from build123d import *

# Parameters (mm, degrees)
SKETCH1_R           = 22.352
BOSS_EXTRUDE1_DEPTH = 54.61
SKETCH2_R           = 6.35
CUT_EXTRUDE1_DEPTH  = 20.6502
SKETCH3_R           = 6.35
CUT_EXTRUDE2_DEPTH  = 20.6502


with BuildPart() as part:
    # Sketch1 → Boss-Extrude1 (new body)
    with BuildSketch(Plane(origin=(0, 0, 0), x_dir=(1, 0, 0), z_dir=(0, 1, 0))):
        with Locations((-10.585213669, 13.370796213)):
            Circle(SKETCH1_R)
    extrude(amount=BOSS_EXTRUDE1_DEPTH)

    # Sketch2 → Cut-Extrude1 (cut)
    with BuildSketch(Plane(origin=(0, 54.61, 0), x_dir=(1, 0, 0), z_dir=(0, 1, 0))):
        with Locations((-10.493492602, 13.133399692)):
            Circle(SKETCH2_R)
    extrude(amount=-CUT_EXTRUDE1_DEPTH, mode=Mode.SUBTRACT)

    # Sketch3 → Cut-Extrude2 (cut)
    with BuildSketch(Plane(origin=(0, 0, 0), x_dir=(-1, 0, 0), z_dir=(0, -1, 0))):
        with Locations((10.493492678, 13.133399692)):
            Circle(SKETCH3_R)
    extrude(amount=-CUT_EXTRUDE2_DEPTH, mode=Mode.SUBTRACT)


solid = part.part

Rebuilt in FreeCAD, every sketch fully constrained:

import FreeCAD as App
import Part
import Sketcher
Q = App.Units.Quantity

doc = App.newDocument("Part")
body = doc.addObject("PartDesign::Body", "Body")

# Sketch on XZ plane
sketch1 = doc.addObject("Sketcher::SketchObject", "Sketch")
body.addObject(sketch1)
sketch1.AttachmentSupport = (doc.XZ_Plane, [""])
sketch1.MapMode = "FlatFace"
sketch1.addGeometry(Part.Circle(App.Vector(-10.585214, -13.370796, 0), App.Vector(0, 0, 1), 22.352), False)
sketch1.addConstraint([
    Sketcher.Constraint("Diameter", 0, Q("1.76 in")),
    Sketcher.Constraint("DistanceX", 0, 3, -1, 1, Q("10.585214 mm")),
    Sketcher.Constraint("DistanceY", 0, 3, -1, 1, Q("13.370796 mm")),
])
pad1 = doc.addObject("PartDesign::Pad", "Pad")
body.addObject(pad1)
pad1.Profile = sketch1
pad1.Length = Q("2.15 in")
pad1.Reversed = True

# Sketch on XZ plane
sketch2 = doc.addObject("Sketcher::SketchObject", "Sketch001")
body.addObject(sketch2)
sketch2.AttachmentSupport = (doc.XZ_Plane, [""])
sketch2.MapMode = "FlatFace"
sketch2.AttachmentOffset = App.Placement(App.Vector(0, 0, -2.15 * 25.4), App.Rotation())
sketch2.addGeometry(Part.Circle(App.Vector(-10.493493, -13.1334, 0), App.Vector(0, 0, 1), 6.35), False)
sketch2.addConstraint([
    Sketcher.Constraint("Diameter", 0, Q("0.5 in")),
    Sketcher.Constraint("DistanceY", 0, 3, -1, 1, Q("13.1334 mm")),
    Sketcher.Constraint("DistanceX", 0, 3, -1, 1, Q("10.493493 mm")),
])
pocket1 = doc.addObject("PartDesign::Pocket", "Pocket")
body.addObject(pocket1)
pocket1.Profile = sketch2
pocket1.Length = Q("0.813 in")
pocket1.Reversed = True

# Sketch on XZ plane
sketch3 = doc.addObject("Sketcher::SketchObject", "Sketch002")
body.addObject(sketch3)
sketch3.AttachmentSupport = (doc.XZ_Plane, [""])
sketch3.MapMode = "FlatFace"
sketch3.addGeometry(Part.Circle(App.Vector(-10.493493, -13.1334, 0), App.Vector(0, 0, 1), 6.35), False)
sketch3.addConstraint([
    Sketcher.Constraint("Diameter", 0, Q("0.5 in")),
    Sketcher.Constraint("DistanceY", 0, 3, -1, 1, Q("13.1334 mm")),
    Sketcher.Constraint("DistanceX", 0, 3, -1, 1, Q("10.493493 mm")),
])
pocket2 = doc.addObject("PartDesign::Pocket", "Pocket001")
body.addObject(pocket2)
pocket2.Profile = sketch3
pocket2.Length = Q("0.813 in")

doc.recompute()
